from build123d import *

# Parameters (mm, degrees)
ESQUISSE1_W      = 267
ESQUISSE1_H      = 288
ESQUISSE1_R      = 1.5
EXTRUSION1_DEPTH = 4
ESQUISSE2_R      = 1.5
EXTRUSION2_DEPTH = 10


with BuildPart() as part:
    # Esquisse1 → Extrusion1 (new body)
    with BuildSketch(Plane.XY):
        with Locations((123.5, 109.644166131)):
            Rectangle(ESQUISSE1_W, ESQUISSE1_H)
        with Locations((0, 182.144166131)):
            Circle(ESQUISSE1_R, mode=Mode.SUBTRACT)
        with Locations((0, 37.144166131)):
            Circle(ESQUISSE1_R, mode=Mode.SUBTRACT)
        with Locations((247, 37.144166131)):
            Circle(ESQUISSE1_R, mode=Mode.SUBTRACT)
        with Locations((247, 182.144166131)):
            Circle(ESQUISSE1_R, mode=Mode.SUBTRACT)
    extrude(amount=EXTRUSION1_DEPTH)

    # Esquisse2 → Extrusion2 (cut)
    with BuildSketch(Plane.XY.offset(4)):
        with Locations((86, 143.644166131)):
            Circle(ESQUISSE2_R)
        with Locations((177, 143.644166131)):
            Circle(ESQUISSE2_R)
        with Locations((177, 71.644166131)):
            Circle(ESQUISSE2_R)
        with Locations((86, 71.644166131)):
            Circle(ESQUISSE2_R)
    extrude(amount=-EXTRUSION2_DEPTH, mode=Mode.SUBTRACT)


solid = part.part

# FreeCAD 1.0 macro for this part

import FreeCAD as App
import Part
import Sketcher
from FreeCAD import Vector
Q = App.Units.Quantity

doc = App.newDocument("Part")
body = doc.addObject("PartDesign::Body", "Body")

# Sketch on XY plane
sketch1 = body.newObject("Sketcher::SketchObject", "Sketch")
sketch1.AttachmentSupport = (doc.getObject("XY_Plane"), [""])
sketch1.MapMode = "FlatFace"
sketch1.addGeometry(Part.LineSegment(Vector(-10, 253.644166, 0), Vector(-10, -34.355834, 0)), False)
sketch1.addGeometry(Part.LineSegment(Vector(-10, -34.355834, 0), Vector(257, -34.355834, 0)), False)
sketch1.addGeometry(Part.LineSegment(Vector(257, -34.355834, 0), Vector(257, 253.644166, 0)), False)
sketch1.addGeometry(Part.LineSegment(Vector(257, 253.644166, 0), Vector(-10, 253.644166, 0)), False)
sketch1.addGeometry(Part.Circle(Vector(0, 37.144166, 0), Vector(0, 0, 1), 1.5), False)
sketch1.addGeometry(Part.Circle(Vector(247, 37.144166, 0), Vector(0, 0, 1), 1.5), False)
sketch1.addGeometry(Part.Circle(Vector(0, 182.144166, 0), Vector(0, 0, 1), 1.5), False)
sketch1.addGeometry(Part.Circle(Vector(247, 182.144166, 0), Vector(0, 0, 1), 1.5), False)
sketch1.addConstraint(Sketcher.Constraint("Coincident", 0, 2, 1, 1))
sketch1.addConstraint(Sketcher.Constraint("Coincident", 1, 2, 2, 1))
sketch1.addConstraint(Sketcher.Constraint("Coincident", 2, 2, 3, 1))
sketch1.addConstraint(Sketcher.Constraint("Coincident", 3, 2, 0, 1))
sketch1.addConstraint(Sketcher.Constraint("Vertical", 0))
sketch1.addConstraint(Sketcher.Constraint("Horizontal", 1))
sketch1.addConstraint(Sketcher.Constraint("Vertical", 2))
sketch1.addConstraint(Sketcher.Constraint("Horizontal", 3))
sketch1.addConstraint(Sketcher.Constraint("Equal", 4, 5))
sketch1.addConstraint(Sketcher.Constraint("Equal", 5, 6))
sketch1.addConstraint(Sketcher.Constraint("Equal", 6, 7))
sketch1.addConstraint(Sketcher.Constraint("PointOnObject", 4, 3, -2))
sketch1.addConstraint(Sketcher.Constraint("PointOnObject", 6, 3, -2))
sketch1.addConstraint(Sketcher.Constraint("Horizontal", 4, 3, 5, 3))
sketch1.addConstraint(Sketcher.Constraint("Horizontal", 6, 3, 7, 3))
sketch1.addConstraint(Sketcher.Constraint("Vertical", 5, 3, 7, 3))
sketch1.addConstraint(Sketcher.Constraint("Diameter", 4, Q("3 mm")))
sketch1.addConstraint(Sketcher.Constraint("DistanceX", 1, 1, 1, 2, Q("267 mm")))
sketch1.addConstraint(Sketcher.Constraint("DistanceY", 0, 2, 0, 1, Q("288 mm")))
sketch1.addConstraint(Sketcher.Constraint("DistanceX", -1, 1, 5, 3, Q("247 mm")))
sketch1.addConstraint(Sketcher.Constraint("DistanceX", 0, 2, -1, 1, Q("10 mm")))
sketch1.addConstraint(Sketcher.Constraint("DistanceY", 4, 3, 6, 3, Q("145 mm")))
sketch1.addConstraint(Sketcher.Constraint("DistanceY", 0, 2, 4, 3, Q("71.5 mm")))
sketch1.addConstraint(Sketcher.Constraint("DistanceY", -1, 1, 4, 3, Q("37.144166 mm")))
pad1 = body.newObject("PartDesign::Pad", "Pad")
pad1.Profile = sketch1
pad1.Length = 4

# Sketch on XY plane
sketch2 = body.newObject("Sketcher::SketchObject", "Sketch001")
sketch2.AttachmentSupport = (doc.getObject("XY_Plane"), [""])
sketch2.MapMode = "FlatFace"
sketch2.AttachmentOffset = App.Placement(Vector(0, 0, 4), App.Rotation())
sketch2.addGeometry(Part.Circle(Vector(86, 143.644166, 0), Vector(0, 0, 1), 1.5), False)
sketch2.addGeometry(Part.Circle(Vector(177, 143.644166, 0), Vector(0, 0, 1), 1.5), False)
sketch2.addGeometry(Part.Circle(Vector(177, 71.644166, 0), Vector(0, 0, 1), 1.5), False)
sketch2.addGeometry(Part.Circle(Vector(86, 71.644166, 0), Vector(0, 0, 1), 1.5), False)
sketch2.addConstraint(Sketcher.Constraint("Equal", 0, 1))
sketch2.addConstraint(Sketcher.Constraint("Equal", 1, 2))
sketch2.addConstraint(Sketcher.Constraint("Equal", 2, 3))
sketch2.addConstraint(Sketcher.Constraint("Horizontal", 0, 3, 1, 3))
sketch2.addConstraint(Sketcher.Constraint("Horizontal", 2, 3, 3, 3))
sketch2.addConstraint(Sketcher.Constraint("Vertical", 1, 3, 2, 3))
sketch2.addConstraint(Sketcher.Constraint("Vertical", 0, 3, 3, 3))
sketch2.addConstraint(Sketcher.Constraint("Diameter", 0, Q("3 mm")))
sketch2.addConstraint(Sketcher.Constraint("DistanceX", -1, 1, 0, 3, Q("86 mm")))
sketch2.addConstraint(Sketcher.Constraint("DistanceX", -1, 1, 1, 3, Q("177 mm")))
sketch2.addConstraint(Sketcher.Constraint("DistanceY", 2, 3, 1, 3, Q("72 mm")))
sketch2.addConstraint(Sketcher.Constraint("DistanceY", -1, 1, 0, 3, Q("143.644166 mm")))
pocket1 = body.newObject("PartDesign::Pocket", "Pocket")
pocket1.Profile = sketch2
pocket1.Length = 10

doc.recompute()
